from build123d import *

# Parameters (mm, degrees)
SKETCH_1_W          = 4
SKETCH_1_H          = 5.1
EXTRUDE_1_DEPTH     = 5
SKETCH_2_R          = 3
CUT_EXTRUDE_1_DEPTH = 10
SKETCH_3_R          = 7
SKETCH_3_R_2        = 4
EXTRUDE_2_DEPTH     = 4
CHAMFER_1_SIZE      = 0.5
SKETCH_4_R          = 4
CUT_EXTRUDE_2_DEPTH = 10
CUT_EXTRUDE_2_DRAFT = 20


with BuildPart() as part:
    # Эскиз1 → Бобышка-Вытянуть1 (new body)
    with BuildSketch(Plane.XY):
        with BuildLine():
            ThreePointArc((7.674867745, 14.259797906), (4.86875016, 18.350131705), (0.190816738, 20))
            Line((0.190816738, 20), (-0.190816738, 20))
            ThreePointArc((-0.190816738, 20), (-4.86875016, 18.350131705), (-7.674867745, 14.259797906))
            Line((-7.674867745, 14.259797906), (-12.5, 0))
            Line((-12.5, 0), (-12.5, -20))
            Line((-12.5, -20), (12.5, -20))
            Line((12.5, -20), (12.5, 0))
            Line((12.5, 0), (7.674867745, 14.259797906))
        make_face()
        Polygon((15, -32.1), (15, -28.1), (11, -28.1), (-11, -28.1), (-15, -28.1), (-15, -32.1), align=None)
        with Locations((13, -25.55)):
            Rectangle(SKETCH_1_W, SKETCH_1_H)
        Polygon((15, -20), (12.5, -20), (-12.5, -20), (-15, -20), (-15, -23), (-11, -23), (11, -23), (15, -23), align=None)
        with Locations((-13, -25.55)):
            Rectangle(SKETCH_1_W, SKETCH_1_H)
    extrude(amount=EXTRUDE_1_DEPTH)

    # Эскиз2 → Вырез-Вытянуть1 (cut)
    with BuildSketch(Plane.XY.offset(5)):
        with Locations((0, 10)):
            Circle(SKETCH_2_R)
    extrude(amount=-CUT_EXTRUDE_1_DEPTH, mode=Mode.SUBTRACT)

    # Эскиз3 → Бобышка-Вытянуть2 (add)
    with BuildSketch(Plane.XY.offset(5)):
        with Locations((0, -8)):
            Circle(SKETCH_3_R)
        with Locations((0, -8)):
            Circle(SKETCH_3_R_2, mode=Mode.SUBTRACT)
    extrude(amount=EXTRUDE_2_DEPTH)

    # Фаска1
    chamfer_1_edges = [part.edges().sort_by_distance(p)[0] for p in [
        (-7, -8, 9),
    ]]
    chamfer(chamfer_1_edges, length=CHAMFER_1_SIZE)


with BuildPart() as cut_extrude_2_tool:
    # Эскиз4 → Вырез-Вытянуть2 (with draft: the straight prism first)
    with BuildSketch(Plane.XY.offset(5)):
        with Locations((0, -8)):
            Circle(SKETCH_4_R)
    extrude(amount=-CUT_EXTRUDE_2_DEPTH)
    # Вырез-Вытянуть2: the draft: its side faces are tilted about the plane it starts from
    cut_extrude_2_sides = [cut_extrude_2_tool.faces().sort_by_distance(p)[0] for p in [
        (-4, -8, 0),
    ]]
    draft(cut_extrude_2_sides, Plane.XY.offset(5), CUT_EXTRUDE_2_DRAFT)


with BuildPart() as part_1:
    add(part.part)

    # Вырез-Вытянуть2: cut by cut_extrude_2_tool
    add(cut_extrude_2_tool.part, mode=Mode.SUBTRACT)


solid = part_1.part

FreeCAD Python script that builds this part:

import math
import FreeCAD as App
import Part
import Sketcher
from FreeCAD import Vector
Q = App.Units.Quantity


def edges_at(feature, points):
    """Names of the edges that pass closest to the given points."""
    edges = feature.Shape.Edges
    near = lambda p: min(range(len(edges)), key=lambda i: edges[i].distToShape(Part.Vertex(*p))[0])
    return sorted({f"Edge{near(p) + 1}" for p in points})


def faces_at(feature, points):
    """Names of the faces that lie closest to the given points."""
    faces = feature.Shape.Faces
    near = lambda p: min(range(len(faces)), key=lambda i: faces[i].distToShape(Part.Vertex(*p))[0])
    return sorted({f"Face{near(p) + 1}" for p in points})


def add_polygon(sketch, points):
    """Adds a closed chain of lines whose ends are joined by coincident constraints."""
    first, n = sketch.GeometryCount, len(points)
    for a, b in zip(points, points[1:] + points[:1]):
        sketch.addGeometry(Part.LineSegment(App.Vector(*a, 0), App.Vector(*b, 0)), False)
    for i in range(n):
        sketch.addConstraint(Sketcher.Constraint("Coincident", first + i, 2, first + (i + 1) % n, 1))

doc = App.newDocument("Part")
body = doc.addObject("PartDesign::Body", "Body")

# Sketch on XY plane
sketch1 = body.newObject("Sketcher::SketchObject", "Sketch")
sketch1.AttachmentSupport = (doc.getObject("XY_Plane"), [""])
sketch1.MapMode = "FlatFace"
sketch1.addGeometry(Part.ArcOfCircle(Part.Circle(Vector(0, 12, 0), Vector(0, 0, 1), 8), math.radians(16), math.radians(89)), False)  # 0
sketch1.addGeometry(Part.LineSegment(Vector(0.19, 20, 0), Vector(-0.19, 20, 0)), False)  # 1
sketch1.addGeometry(Part.ArcOfCircle(Part.Circle(Vector(0, 12, 0), Vector(0, 0, 1), 8), math.radians(91), math.radians(164)), False)  # 2
sketch1.addGeometry(Part.LineSegment(Vector(-7.67, 14.26, 0), Vector(-12.5, 0, 0)), False)  # 3
sketch1.addGeometry(Part.LineSegment(Vector(-12.5, 0, 0), Vector(-12.5, -20, 0)), False)  # 4
sketch1.addGeometry(Part.LineSegment(Vector(-12.5, -20, 0), Vector(-15, -20, 0)), False)  # 5
sketch1.addGeometry(Part.LineSegment(Vector(-15, -20, 0), Vector(-15, -32.1, 0)), False)  # 6
sketch1.addGeometry(Part.LineSegment(Vector(-15, -32.1, 0), Vector(15, -32.1, 0)), False)  # 7
sketch1.addGeometry(Part.LineSegment(Vector(15, -32.1, 0), Vector(15, -20, 0)), False)  # 8
sketch1.addGeometry(Part.LineSegment(Vector(15, -20, 0), Vector(12.5, -20, 0)), False)  # 9
sketch1.addGeometry(Part.LineSegment(Vector(12.5, -20, 0), Vector(12.5, 0, 0)), False)  # 10
sketch1.addGeometry(Part.LineSegment(Vector(12.5, 0, 0), Vector(7.67, 14.26, 0)), False)  # 11
add_polygon(sketch1, [(-11, -23), (11, -23), (11, -28.1), (-11, -28.1)])  # lines 12-15
sketch1.addConstraint([
    Sketcher.Constraint("Coincident", 0, 2, 1, 1),
    Sketcher.Constraint("Coincident", 1, 2, 2, 1),
    Sketcher.Constraint("Coincident", 2, 2, 3, 1),
    Sketcher.Constraint("Coincident", 3, 2, 4, 1),
    Sketcher.Constraint("Coincident", 4, 2, 5, 1),
    Sketcher.Constraint("Coincident", 5, 2, 6, 1),
    Sketcher.Constraint("Coincident", 6, 2, 7, 1),
    Sketcher.Constraint("Coincident", 7, 2, 8, 1),
    Sketcher.Constraint("Coincident", 8, 2, 9, 1),
    Sketcher.Constraint("Coincident", 9, 2, 10, 1),
    Sketcher.Constraint("Coincident", 10, 2, 11, 1),
    Sketcher.Constraint("Coincident", 11, 2, 0, 1),
    Sketcher.Constraint("Horizontal", 1),
    Sketcher.Constraint("Vertical", 4),
    Sketcher.Constraint("Horizontal", 5),
    Sketcher.Constraint("Vertical", 6),
    Sketcher.Constraint("Horizontal", 7),
    Sketcher.Constraint("Vertical", 8),
    Sketcher.Constraint("Horizontal", 9),
    Sketcher.Constraint("Vertical", 10),
    Sketcher.Constraint("Horizontal", 12),
    Sketcher.Constraint("Vertical", 13),
    Sketcher.Constraint("Horizontal", 14),
    Sketcher.Constraint("Vertical", 15),
    Sketcher.Constraint("Coincident", 2, 3, 0, 3),
    Sketcher.Constraint("Equal", 0, 2),
    Sketcher.Constraint("Symmetric", 3, 2, 10, 2, -1, 1),
    Sketcher.Constraint("Symmetric", 5, 2, 8, 2, -2),
    Sketcher.Constraint("Symmetric", 2, 2, 11, 2, -2),
    Sketcher.Constraint("PointOnObject", 3, 2, -1),
    Sketcher.Constraint("Radius", 0, Q("8 mm")),
    Sketcher.Constraint("DistanceX", 7, 1, 7, 2, Q("30 mm")),
    Sketcher.Constraint("DistanceX", 12, 1, 12, 2, Q("22 mm")),
    Sketcher.Constraint("DistanceY", 4, 2, 4, 1, Q("20 mm")),
    Sketcher.Constraint("DistanceX", 5, 2, 5, 1, Q("2.5 mm")),
    Sketcher.Constraint("DistanceY", 6, 2, 6, 1, Q("12.1 mm")),
    Sketcher.Constraint("DistanceY", 13, 2, 13, 1, Q("5.1 mm")),
    Sketcher.Constraint("DistanceY", -1, 1, 0, 2, Q("20 mm")),
    Sketcher.Constraint("DistanceX", -1, 1, 12, 2, Q("11 mm")),
    Sketcher.Constraint("DistanceY", 12, 2, -1, 1, Q("23 mm")),
    Sketcher.Constraint("DistanceX", 1, 2, 1, 1, Q("0.381633 mm")),
    Sketcher.Constraint("DistanceY", 2, 3, 2, 2, Q("2.257522 mm")),
])
pad1 = body.newObject("PartDesign::Pad", "Pad")
pad1.Profile = sketch1
pad1.Length = 5

# Sketch on XY plane
sketch2 = body.newObject("Sketcher::SketchObject", "Sketch001")
sketch2.AttachmentSupport = (doc.getObject("XY_Plane"), [""])
sketch2.MapMode = "FlatFace"
sketch2.AttachmentOffset = App.Placement(Vector(0, 0, 5), App.Rotation())
sketch2.addGeometry(Part.Circle(Vector(0, 10, 0), Vector(0, 0, 1), 3), False)
sketch2.addConstraint([
    Sketcher.Constraint("PointOnObject", 0, 3, -2),
    Sketcher.Constraint("Diameter", 0, Q("6 mm")),
    Sketcher.Constraint("DistanceY", -1, 1, 0, 3, Q("10 mm")),
])
pocket1 = body.newObject("PartDesign::Pocket", "Pocket")
pocket1.Profile = sketch2
pocket1.Length = 10

# Sketch on XY plane
sketch3 = body.newObject("Sketcher::SketchObject", "Sketch002")
sketch3.AttachmentSupport = (doc.getObject("XY_Plane"), [""])
sketch3.MapMode = "FlatFace"
sketch3.AttachmentOffset = App.Placement(Vector(0, 0, 5), App.Rotation())
sketch3.addGeometry([
    Part.Circle(Vector(0, -8, 0), Vector(0, 0, 1), 7),
    Part.Circle(Vector(0, -8, 0), Vector(0, 0, 1), 4),
], False)
sketch3.addConstraint([
    Sketcher.Constraint("Coincident", 1, 3, 0, 3),
    Sketcher.Constraint("PointOnObject", 0, 3, -2),
    Sketcher.Constraint("Diameter", 0, Q("14 mm")),
    Sketcher.Constraint("Diameter", 1, Q("8 mm")),
    Sketcher.Constraint("DistanceY", 0, 3, -1, 1, Q("8 mm")),
])
pad2 = body.newObject("PartDesign::Pad", "Pad001")
pad2.Profile = sketch3
pad2.Length = 4
doc.recompute()

chamfer = body.newObject("PartDesign::Chamfer", "Chamfer")
chamfer.Base = (pad2, edges_at(pad2, [(-7, -8, 9)]))
chamfer.Size = 0.5
body2 = doc.addObject("PartDesign::Body", "Body001")

# Sketch on XY plane
sketch4 = body2.newObject("Sketcher::SketchObject", "Sketch003")
sketch4.AttachmentSupport = (doc.getObject("XY_Plane001"), [""])
sketch4.MapMode = "FlatFace"
sketch4.AttachmentOffset = App.Placement(Vector(0, 0, 5), App.Rotation())
sketch4.addGeometry(Part.Circle(Vector(0, -8, 0), Vector(0, 0, 1), 4), False)
sketch4.addConstraint([
    Sketcher.Constraint("PointOnObject", 0, 3, -2),
    Sketcher.Constraint("Diameter", 0, Q("8 mm")),
    Sketcher.Constraint("DistanceY", 0, 3, -1, 1, Q("8 mm")),
])
pad3 = body2.newObject("PartDesign::Pad", "Pad002")
pad3.Profile = sketch4
pad3.Length = 10
pad3.Reversed = True
doc.recompute()

datumplane = body2.newObject("PartDesign::Plane", "DatumPlane")
datumplane.AttachmentSupport = (doc.getObject("XY_Plane001"), [""])
datumplane.MapMode = "FlatFace"
datumplane.AttachmentOffset = App.Placement(Vector(0, 0, 5), App.Rotation())
draft = body2.newObject("PartDesign::Draft", "Draft")
draft.Base = (pad3, faces_at(pad3, [(-4, -8, 0)]))
draft.NeutralPlane = (datumplane, [""])
draft.Angle = 20
draft.Reversed = False
doc.recompute()

boolean = body.newObject("PartDesign::Boolean", "Boolean")
boolean.Type = "Cut"
boolean.addObjects([body2])

doc.recompute()
